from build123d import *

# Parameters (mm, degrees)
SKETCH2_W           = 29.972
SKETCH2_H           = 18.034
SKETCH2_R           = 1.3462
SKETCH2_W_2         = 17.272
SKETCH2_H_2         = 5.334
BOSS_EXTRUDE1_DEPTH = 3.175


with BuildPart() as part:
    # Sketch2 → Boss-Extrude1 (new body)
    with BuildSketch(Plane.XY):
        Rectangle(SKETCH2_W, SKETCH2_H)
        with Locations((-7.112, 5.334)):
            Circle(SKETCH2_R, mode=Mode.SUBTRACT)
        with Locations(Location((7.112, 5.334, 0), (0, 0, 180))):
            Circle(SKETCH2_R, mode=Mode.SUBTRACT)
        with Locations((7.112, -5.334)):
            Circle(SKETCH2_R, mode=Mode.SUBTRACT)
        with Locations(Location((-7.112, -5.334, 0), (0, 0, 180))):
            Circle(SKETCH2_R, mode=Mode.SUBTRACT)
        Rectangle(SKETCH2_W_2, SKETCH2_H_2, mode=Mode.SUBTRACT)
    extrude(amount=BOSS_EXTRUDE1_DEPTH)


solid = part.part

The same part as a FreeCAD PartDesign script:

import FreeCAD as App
import Part
import Sketcher
Q = App.Units.Quantity


def add_polygon(sketch, points):
    """Adds a closed chain of lines whose ends are joined by coincident constraints."""
    first, n = sketch.GeometryCount, len(points)
    for a, b in zip(points, points[1:] + points[:1]):
        sketch.addGeometry(Part.LineSegment(App.Vector(*a, 0), App.Vector(*b, 0)), False)
    for i in range(n):
        sketch.addConstraint(Sketcher.Constraint("Coincident", first + i, 2, first + (i + 1) % n, 1))

doc = App.newDocument("Part")
body = doc.addObject("PartDesign::Body", "Body")

sketch1 = body.newObject("Sketcher::SketchObject", "Sketch")
sketch1.AttachmentSupport = (doc.getObject("XY_Plane"), [""])
sketch1.MapMode = "FlatFace"
add_polygon(sketch1, [(-14.986, 9.017), (-14.986, -9.017), (14.986, -9.017), (14.986, 9.017)])
sketch1.addGeometry(Part.Circle(App.Vector(-7.112, -5.334, 0), App.Vector(0, 0, 1), 1.3462), False)
sketch1.addGeometry(Part.Circle(App.Vector(7.112, -5.334, 0), App.Vector(0, 0, 1), 1.3462), False)
sketch1.addGeometry(Part.Circle(App.Vector(-7.112, 5.334, 0), App.Vector(0, 0, 1), 1.3462), False)
add_polygon(sketch1, [(8.636, -2.667), (-8.636, -2.667), (-8.636, 2.667), (8.636, 2.667)])
sketch1.addGeometry(Part.Circle(App.Vector(7.112, 5.334, 0), App.Vector(0, 0, 1), 1.3462), False)
sketch1.addConstraint([
    Sketcher.Constraint("Vertical", 0),
    Sketcher.Constraint("Horizontal", 1),
    Sketcher.Constraint("Vertical", 2),
    Sketcher.Constraint("Horizontal", 3),
    Sketcher.Constraint("Horizontal", 7),
    Sketcher.Constraint("Vertical", 8),
    Sketcher.Constraint("Horizontal", 9),
    Sketcher.Constraint("Vertical", 10),
    Sketcher.Constraint("Equal", 4, 5),
    Sketcher.Constraint("Equal", 5, 6),
    Sketcher.Constraint("Equal", 6, 11),
    Sketcher.Constraint("Symmetric", 5, 3, 6, 3, -1, 1),
    Sketcher.Constraint("Symmetric", 4, 3, 11, 3, -1, 1),
    Sketcher.Constraint("Symmetric", 0, 2, 2, 2, -1, 1),
    Sketcher.Constraint("Symmetric", 7, 2, 9, 2, -1, 1),
    Sketcher.Constraint("Symmetric", 4, 3, 5, 3, -2),
    Sketcher.Constraint("Diameter", 4, Q("0.106 in")),
    Sketcher.Constraint("DistanceX", 1, 1, 1, 2, Q("1.18 in")),
    Sketcher.Constraint("DistanceX", 7, 2, 7, 1, Q("0.68 in")),
    Sketcher.Constraint("DistanceY", 0, 2, 0, 1, Q("0.71 in")),
    Sketcher.Constraint("DistanceY", 8, 1, 8, 2, Q("0.21 in")),
    Sketcher.Constraint("DistanceX", 4, 3, -1, 1, Q("0.28 in")),
    Sketcher.Constraint("DistanceY", 4, 3, -1, 1, Q("0.21 in")),
])
pad1 = body.newObject("PartDesign::Pad", "Pad")
pad1.Profile = sketch1
pad1.Length = Q("0.125 in")

doc.recompute()
